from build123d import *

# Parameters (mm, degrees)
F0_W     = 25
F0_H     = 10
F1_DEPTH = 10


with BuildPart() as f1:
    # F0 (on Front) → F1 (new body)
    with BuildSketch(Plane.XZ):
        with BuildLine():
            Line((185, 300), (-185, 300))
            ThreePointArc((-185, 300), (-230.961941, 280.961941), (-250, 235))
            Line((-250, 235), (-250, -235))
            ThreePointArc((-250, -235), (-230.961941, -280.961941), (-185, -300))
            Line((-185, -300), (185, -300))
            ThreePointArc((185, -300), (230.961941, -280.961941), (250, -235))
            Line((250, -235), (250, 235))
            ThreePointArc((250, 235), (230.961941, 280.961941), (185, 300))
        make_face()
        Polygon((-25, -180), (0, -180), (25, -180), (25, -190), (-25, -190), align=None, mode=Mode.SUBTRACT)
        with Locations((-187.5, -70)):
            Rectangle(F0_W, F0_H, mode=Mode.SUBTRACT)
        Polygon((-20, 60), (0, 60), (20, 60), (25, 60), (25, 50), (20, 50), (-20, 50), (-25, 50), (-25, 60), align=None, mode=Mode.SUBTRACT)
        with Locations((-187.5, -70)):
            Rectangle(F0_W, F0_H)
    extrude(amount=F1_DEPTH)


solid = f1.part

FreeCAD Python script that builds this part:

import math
import FreeCAD as App
import Part
import Sketcher
Q = App.Units.Quantity


def add_polygon(sketch, points):
    """Adds a closed chain of lines whose ends are joined by coincident constraints."""
    first, n = sketch.GeometryCount, len(points)
    for a, b in zip(points, points[1:] + points[:1]):
        sketch.addGeometry(Part.LineSegment(App.Vector(*a, 0), App.Vector(*b, 0)), False)
    for i in range(n):
        sketch.addConstraint(Sketcher.Constraint("Coincident", first + i, 2, first + (i + 1) % n, 1))

doc = App.newDocument("Part")
params = doc.addObject("Spreadsheet::Sheet", "Params")
for row, (alias, value) in enumerate([
    ("sketch1_radius", "64.999999 mm"),
    ("sketch1_width", "370 mm"),
    ("sketch1_width2", "50 mm"),
    ("sketch1_height", "470 mm"),
    ("sketch1_height2", "10 mm"),
    ("pad1_length", "10 mm"),
], start=1):
    params.set(f"A{row}", alias)
    params.set(f"B{row}", "=" + value)
    params.setAlias(f"B{row}", alias)

body = doc.addObject("PartDesign::Body", "Body")

sketch1 = body.newObject("Sketcher::SketchObject", "Sketch")
sketch1.AttachmentSupport = (doc.getObject("XZ_Plane"), [""])
sketch1.MapMode = "FlatFace"
sketch1.addGeometry(Part.LineSegment(App.Vector(185, 300, 0), App.Vector(-185, 300, 0)), False)
sketch1.addGeometry(Part.ArcOfCircle(Part.Circle(App.Vector(-185, 235, 0), App.Vector(0, 0, 1), 65), math.radians(90), math.radians(180)), False)
sketch1.addGeometry(Part.LineSegment(App.Vector(-250, 235, 0), App.Vector(-250, -235, 0)), False)
sketch1.addGeometry(Part.ArcOfCircle(Part.Circle(App.Vector(-185, -235, 0), App.Vector(0, 0, 1), 65), math.radians(180), math.radians(270)), False)
sketch1.addGeometry(Part.LineSegment(App.Vector(-185, -300, 0), App.Vector(185, -300, 0)), False)
sketch1.addGeometry(Part.ArcOfCircle(Part.Circle(App.Vector(185, -235, 0), App.Vector(0, 0, 1), 65), math.radians(-90), math.radians(0)), False)
sketch1.addGeometry(Part.LineSegment(App.Vector(250, -235, 0), App.Vector(250, 235, 0)), False)
sketch1.addGeometry(Part.ArcOfCircle(Part.Circle(App.Vector(185, 235, 0), App.Vector(0, 0, 1), 65), math.radians(0), math.radians(90)), False)
add_polygon(sketch1, [(-25, -190), (-25, -180), (25, -180), (25, -190)])
add_polygon(sketch1, [(-25, 60), (25, 60), (25, 50), (-25, 50)])
sketch1.addConstraint(Sketcher.Constraint("Tangent", 0, 2, 1, 1))
sketch1.addConstraint(Sketcher.Constraint("Tangent", 1, 2, 2, 1))
sketch1.addConstraint(Sketcher.Constraint("Tangent", 2, 2, 3, 1))
sketch1.addConstraint(Sketcher.Constraint("Tangent", 3, 2, 4, 1))
sketch1.addConstraint(Sketcher.Constraint("Tangent", 4, 2, 5, 1))
sketch1.addConstraint(Sketcher.Constraint("Tangent", 5, 2, 6, 1))
sketch1.addConstraint(Sketcher.Constraint("Tangent", 6, 2, 7, 1))
sketch1.addConstraint(Sketcher.Constraint("Tangent", 7, 2, 0, 1))
sketch1.addConstraint(Sketcher.Constraint("Horizontal", 0))
sketch1.addConstraint(Sketcher.Constraint("Vertical", 2))
sketch1.addConstraint(Sketcher.Constraint("Horizontal", 4))
sketch1.addConstraint(Sketcher.Constraint("Vertical", 6))
sketch1.addConstraint(Sketcher.Constraint("Vertical", 8))
sketch1.addConstraint(Sketcher.Constraint("Horizontal", 9))
sketch1.addConstraint(Sketcher.Constraint("Vertical", 10))
sketch1.addConstraint(Sketcher.Constraint("Horizontal", 11))
sketch1.addConstraint(Sketcher.Constraint("Horizontal", 12))
sketch1.addConstraint(Sketcher.Constraint("Vertical", 13))
sketch1.addConstraint(Sketcher.Constraint("Horizontal", 14))
sketch1.addConstraint(Sketcher.Constraint("Vertical", 15))
sketch1.addConstraint(Sketcher.Constraint("Equal", 1, 3))
sketch1.addConstraint(Sketcher.Constraint("Equal", 3, 5))
sketch1.addConstraint(Sketcher.Constraint("Equal", 5, 7))
sketch1.addConstraint(Sketcher.Constraint("Symmetric", 1, 3, 5, 3, -1, 1))
sketch1.addConstraint(Sketcher.Constraint("Vertical", 10, 2, 12, 2))
sketch1.addConstraint(Sketcher.Constraint("Vertical", 11, 2, 14, 2))
sketch1.addConstraint(Sketcher.Constraint("Equal", 10, 13))
sketch1.addConstraint(Sketcher.Constraint("Radius", 1, Q("64.999999 mm")))
sketch1.addConstraint(Sketcher.Constraint("DistanceX", 0, 2, 0, 1, Q("370 mm")))
sketch1.addConstraint(Sketcher.Constraint("DistanceX", 9, 1, 9, 2, Q("50 mm")))
sketch1.addConstraint(Sketcher.Constraint("DistanceY", 2, 2, 2, 1, Q("470 mm")))
sketch1.addConstraint(Sketcher.Constraint("DistanceY", 8, 1, 8, 2, Q("10 mm")))
sketch1.addConstraint(Sketcher.Constraint("DistanceX", 8, 2, -1, 1, Q("25 mm")))
sketch1.addConstraint(Sketcher.Constraint("DistanceY", 8, 2, -1, 1, Q("180 mm")))
sketch1.addConstraint(Sketcher.Constraint("DistanceY", -1, 1, 12, 2, Q("60 mm")))
sketch1.setExpression("Constraints[35]", "Params.sketch1_radius")
sketch1.setExpression("Constraints[36]", "Params.sketch1_width")
sketch1.setExpression("Constraints[37]", "Params.sketch1_width2")
sketch1.setExpression("Constraints[38]", "Params.sketch1_height")
sketch1.setExpression("Constraints[39]", "Params.sketch1_height2")
pad1 = body.newObject("PartDesign::Pad", "Pad")
pad1.Profile = sketch1
pad1.setExpression("Length", "Params.pad1_length")

doc.recompute()
